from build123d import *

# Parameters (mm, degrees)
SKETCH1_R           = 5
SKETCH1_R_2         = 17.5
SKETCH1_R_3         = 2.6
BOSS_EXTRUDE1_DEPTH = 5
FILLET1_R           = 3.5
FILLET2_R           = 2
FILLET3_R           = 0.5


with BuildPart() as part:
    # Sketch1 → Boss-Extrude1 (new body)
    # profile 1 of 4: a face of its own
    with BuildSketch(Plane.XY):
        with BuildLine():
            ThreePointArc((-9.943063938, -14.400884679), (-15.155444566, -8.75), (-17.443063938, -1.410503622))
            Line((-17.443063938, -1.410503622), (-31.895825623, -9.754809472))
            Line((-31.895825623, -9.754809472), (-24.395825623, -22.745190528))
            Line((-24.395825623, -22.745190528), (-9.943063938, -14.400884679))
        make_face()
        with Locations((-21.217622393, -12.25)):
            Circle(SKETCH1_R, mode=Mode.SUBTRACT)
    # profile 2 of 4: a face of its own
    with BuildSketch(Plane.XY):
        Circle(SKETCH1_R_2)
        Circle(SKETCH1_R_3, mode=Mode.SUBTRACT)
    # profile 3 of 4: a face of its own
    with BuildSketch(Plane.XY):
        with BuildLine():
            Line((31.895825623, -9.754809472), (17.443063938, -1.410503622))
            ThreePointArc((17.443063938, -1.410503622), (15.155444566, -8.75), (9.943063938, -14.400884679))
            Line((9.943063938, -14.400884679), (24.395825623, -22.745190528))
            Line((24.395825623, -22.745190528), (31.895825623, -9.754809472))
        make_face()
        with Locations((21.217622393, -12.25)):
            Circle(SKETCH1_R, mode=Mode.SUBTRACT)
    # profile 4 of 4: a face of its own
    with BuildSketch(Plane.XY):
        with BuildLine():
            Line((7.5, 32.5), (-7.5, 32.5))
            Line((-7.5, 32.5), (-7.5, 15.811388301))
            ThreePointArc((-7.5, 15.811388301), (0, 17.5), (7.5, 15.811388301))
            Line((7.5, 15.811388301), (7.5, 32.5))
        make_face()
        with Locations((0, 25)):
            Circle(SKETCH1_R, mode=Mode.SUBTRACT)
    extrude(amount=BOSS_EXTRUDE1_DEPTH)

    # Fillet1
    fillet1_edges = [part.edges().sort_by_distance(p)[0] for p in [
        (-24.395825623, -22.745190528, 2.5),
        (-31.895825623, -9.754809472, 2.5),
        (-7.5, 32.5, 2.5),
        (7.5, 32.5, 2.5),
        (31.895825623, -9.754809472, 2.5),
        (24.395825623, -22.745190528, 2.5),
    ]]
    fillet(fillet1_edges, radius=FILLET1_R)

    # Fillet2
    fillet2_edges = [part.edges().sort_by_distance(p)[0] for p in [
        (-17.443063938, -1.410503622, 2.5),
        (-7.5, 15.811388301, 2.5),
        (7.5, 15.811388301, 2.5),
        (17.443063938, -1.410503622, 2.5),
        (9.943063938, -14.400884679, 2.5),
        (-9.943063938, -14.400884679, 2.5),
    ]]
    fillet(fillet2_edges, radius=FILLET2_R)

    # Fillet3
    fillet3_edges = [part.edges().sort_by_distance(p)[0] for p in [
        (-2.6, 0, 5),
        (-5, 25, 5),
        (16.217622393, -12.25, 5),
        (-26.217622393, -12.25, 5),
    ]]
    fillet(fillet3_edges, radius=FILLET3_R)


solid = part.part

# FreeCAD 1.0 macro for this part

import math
import FreeCAD as App
import Part
import Sketcher
Q = App.Units.Quantity


def edges_at(feature, points):
    """Names of the edges that pass closest to the given points."""
    edges = feature.Shape.Edges
    near = lambda p: min(range(len(edges)), key=lambda i: edges[i].distToShape(Part.Vertex(*p))[0])
    return sorted({f"Edge{near(p) + 1}" for p in points})

doc = App.newDocument("Part")
params = doc.addObject("Spreadsheet::Sheet", "Params")
for row, (alias, value) in enumerate([
    ("sketch1_diameter", "10 mm"),
    ("sketch1_diameter2", "5.2 mm"),
    ("sketch1_radius", "17.5 mm"),
    ("sketch1_width", "15 mm"),
    ("sketch1_length", "15 mm"),
    ("pad1_length", "5 mm"),
    ("fillet_radius", "3.5 mm"),
    ("fillet2_radius", "2 mm"),
    ("fillet3_radius", "0.5 mm"),
], start=1):
    params.set(f"A{row}", alias)
    params.set(f"B{row}", "=" + value)
    params.setAlias(f"B{row}", alias)

body = doc.addObject("PartDesign::Body", "Body")

sketch1 = doc.addObject("Sketcher::SketchObject", "Sketch")
body.addObject(sketch1)
sketch1.AttachmentSupport = (doc.XY_Plane, [""])
sketch1.MapMode = "FlatFace"
sketch1.addGeometry([
    Part.LineSegment(App.Vector(-24.4, -22.7, 0), App.Vector(-9.9, -14.4, 0)),
    Part.ArcOfCircle(Part.Circle(App.Vector(0, 0, 0), App.Vector(0, 0, 1), 17.5), math.radians(-125), math.radians(-55)),
    Part.LineSegment(App.Vector(9.9, -14.4, 0), App.Vector(24.4, -22.7, 0)),
    Part.LineSegment(App.Vector(24.4, -22.7, 0), App.Vector(31.9, -9.8, 0)),
    Part.LineSegment(App.Vector(31.9, -9.8, 0), App.Vector(17.4, -1.4, 0)),
    Part.ArcOfCircle(Part.Circle(App.Vector(0, 0, 0), App.Vector(0, 0, 1), 17.5), math.radians(-5), math.radians(65)),
    Part.LineSegment(App.Vector(7.5, 15.8, 0), App.Vector(7.5, 32.5, 0)),
    Part.LineSegment(App.Vector(7.5, 32.5, 0), App.Vector(-7.5, 32.5, 0)),
    Part.LineSegment(App.Vector(-7.5, 32.5, 0), App.Vector(-7.5, 15.8, 0)),
    Part.ArcOfCircle(Part.Circle(App.Vector(0, 0, 0), App.Vector(0, 0, 1), 17.5), math.radians(115), math.radians(185)),
    Part.LineSegment(App.Vector(-17.4, -1.4, 0), App.Vector(-31.9, -9.8, 0)),
    Part.LineSegment(App.Vector(-31.9, -9.8, 0), App.Vector(-24.4, -22.7, 0)),
    Part.Circle(App.Vector(-21.2, -12.2, 0), App.Vector(0, 0, 1), 5),
    Part.Circle(App.Vector(0, 0, 0), App.Vector(0, 0, 1), 2.6),
    Part.Circle(App.Vector(0, 25, 0), App.Vector(0, 0, 1), 5),
    Part.Circle(App.Vector(21.2, -12.2, 0), App.Vector(0, 0, 1), 5),
], False)
sketch1.addConstraint([
    Sketcher.Constraint("Coincident", 0, 2, 1, 1),
    Sketcher.Constraint("Coincident", 1, 2, 2, 1),
    Sketcher.Constraint("Coincident", 2, 2, 3, 1),
    Sketcher.Constraint("Coincident", 3, 2, 4, 1),
    Sketcher.Constraint("Coincident", 4, 2, 5, 1),
    Sketcher.Constraint("Coincident", 5, 2, 6, 1),
    Sketcher.Constraint("Coincident", 6, 2, 7, 1),
    Sketcher.Constraint("Coincident", 7, 2, 8, 1),
    Sketcher.Constraint("Coincident", 8, 2, 9, 1),
    Sketcher.Constraint("Coincident", 9, 2, 10, 1),
    Sketcher.Constraint("Coincident", 10, 2, 11, 1),
    Sketcher.Constraint("Coincident", 11, 2, 0, 1),
    Sketcher.Constraint("Vertical", 6),
    Sketcher.Constraint("Horizontal", 7),
    Sketcher.Constraint("Vertical", 8),
    Sketcher.Constraint("Coincident", 1, 3, -1, 1),
    Sketcher.Constraint("Coincident", 5, 3, -1, 1),
    Sketcher.Constraint("Coincident", 9, 3, -1, 1),
    Sketcher.Constraint("Coincident", 13, 3, -1, 1),
    Sketcher.Constraint("Equal", 1, 5),
    Sketcher.Constraint("Equal", 5, 9),
    Sketcher.Constraint("Equal", 12, 14),
    Sketcher.Constraint("Equal", 14, 15),
    Sketcher.Constraint("Symmetric", 12, 3, 15, 3, -2),
    Sketcher.Constraint("Symmetric", 3, 2, 10, 2, -2),
    Sketcher.Constraint("Symmetric", 2, 2, 11, 2, -2),
    Sketcher.Constraint("PointOnObject", 14, 3, -2),
    Sketcher.Constraint("Perpendicular", 2, 3),
    Sketcher.Constraint("Perpendicular", 3, 4),
    Sketcher.Constraint("Parallel", 0, 10),
    Sketcher.Constraint("Perpendicular", 10, 11),
    Sketcher.Constraint("Horizontal", 5, 2, 8, 2),
    Sketcher.Constraint("Equal", 2, 4),
    Sketcher.Constraint("Diameter", 12, 10.0),
    Sketcher.Constraint("Diameter", 13, 5.2),
    Sketcher.Constraint("Radius", 1, 17.5),
    Sketcher.Constraint("DistanceX", 7, 2, 7, 1, 15.0),
    Sketcher.Constraint("Angle", 0, Q("30 deg")),
    Sketcher.Constraint("Distance", 3, 15.0),
    Sketcher.Constraint("DistanceY", -1, 1, 14, 3, 25.0),
    Sketcher.Constraint("DistanceY", -1, 1, 6, 2, 32.5),
    Sketcher.Constraint("DistanceY", 12, 3, -1, 1, 12.25),
    Sketcher.Constraint("Distance", 0, 16.688612),
    Sketcher.Constraint("DistanceX", 12, 3, 0, 2, 11.274558),
])
sketch1.setExpression("Constraints[33]", "Params.sketch1_diameter")
sketch1.setExpression("Constraints[34]", "Params.sketch1_diameter2")
sketch1.setExpression("Constraints[35]", "Params.sketch1_radius")
sketch1.setExpression("Constraints[36]", "Params.sketch1_width")
sketch1.setExpression("Constraints[38]", "Params.sketch1_length")
pad1 = doc.addObject("PartDesign::Pad", "Pad")
body.addObject(pad1)
pad1.Profile = sketch1
pad1.setExpression("Length", "Params.pad1_length")
doc.recompute()

fillet = doc.addObject("PartDesign::Fillet", "Fillet")
body.addObject(fillet)
fillet.Base = (pad1, edges_at(pad1, [
    (-24.396, -22.745, 2.5),
    (-31.896, -9.755, 2.5),
    (-7.5, 32.5, 2.5),
    (7.5, 32.5, 2.5),
    (31.896, -9.755, 2.5),
    (24.396, -22.745, 2.5),
]))
fillet.setExpression("Radius", "Params.fillet_radius")
doc.recompute()

fillet2 = doc.addObject("PartDesign::Fillet", "Fillet001")
body.addObject(fillet2)
fillet2.Base = (fillet, edges_at(fillet, [
    (-17.443, -1.411, 2.5),
    (-7.5, 15.811, 2.5),
    (7.5, 15.811, 2.5),
    (17.443, -1.411, 2.5),
    (9.943, -14.401, 2.5),
    (-9.943, -14.401, 2.5),
]))
fillet2.setExpression("Radius", "Params.fillet2_radius")
doc.recompute()

fillet3 = doc.addObject("PartDesign::Fillet", "Fillet002")
body.addObject(fillet3)
fillet3.Base = (fillet2, edges_at(fillet2, [
    (-2.6, 0, 5),
    (-5, 25, 5),
    (16.218, -12.25, 5),
    (-26.218, -12.25, 5),
]))
fillet3.setExpression("Radius", "Params.fillet3_radius")

doc.recompute()
